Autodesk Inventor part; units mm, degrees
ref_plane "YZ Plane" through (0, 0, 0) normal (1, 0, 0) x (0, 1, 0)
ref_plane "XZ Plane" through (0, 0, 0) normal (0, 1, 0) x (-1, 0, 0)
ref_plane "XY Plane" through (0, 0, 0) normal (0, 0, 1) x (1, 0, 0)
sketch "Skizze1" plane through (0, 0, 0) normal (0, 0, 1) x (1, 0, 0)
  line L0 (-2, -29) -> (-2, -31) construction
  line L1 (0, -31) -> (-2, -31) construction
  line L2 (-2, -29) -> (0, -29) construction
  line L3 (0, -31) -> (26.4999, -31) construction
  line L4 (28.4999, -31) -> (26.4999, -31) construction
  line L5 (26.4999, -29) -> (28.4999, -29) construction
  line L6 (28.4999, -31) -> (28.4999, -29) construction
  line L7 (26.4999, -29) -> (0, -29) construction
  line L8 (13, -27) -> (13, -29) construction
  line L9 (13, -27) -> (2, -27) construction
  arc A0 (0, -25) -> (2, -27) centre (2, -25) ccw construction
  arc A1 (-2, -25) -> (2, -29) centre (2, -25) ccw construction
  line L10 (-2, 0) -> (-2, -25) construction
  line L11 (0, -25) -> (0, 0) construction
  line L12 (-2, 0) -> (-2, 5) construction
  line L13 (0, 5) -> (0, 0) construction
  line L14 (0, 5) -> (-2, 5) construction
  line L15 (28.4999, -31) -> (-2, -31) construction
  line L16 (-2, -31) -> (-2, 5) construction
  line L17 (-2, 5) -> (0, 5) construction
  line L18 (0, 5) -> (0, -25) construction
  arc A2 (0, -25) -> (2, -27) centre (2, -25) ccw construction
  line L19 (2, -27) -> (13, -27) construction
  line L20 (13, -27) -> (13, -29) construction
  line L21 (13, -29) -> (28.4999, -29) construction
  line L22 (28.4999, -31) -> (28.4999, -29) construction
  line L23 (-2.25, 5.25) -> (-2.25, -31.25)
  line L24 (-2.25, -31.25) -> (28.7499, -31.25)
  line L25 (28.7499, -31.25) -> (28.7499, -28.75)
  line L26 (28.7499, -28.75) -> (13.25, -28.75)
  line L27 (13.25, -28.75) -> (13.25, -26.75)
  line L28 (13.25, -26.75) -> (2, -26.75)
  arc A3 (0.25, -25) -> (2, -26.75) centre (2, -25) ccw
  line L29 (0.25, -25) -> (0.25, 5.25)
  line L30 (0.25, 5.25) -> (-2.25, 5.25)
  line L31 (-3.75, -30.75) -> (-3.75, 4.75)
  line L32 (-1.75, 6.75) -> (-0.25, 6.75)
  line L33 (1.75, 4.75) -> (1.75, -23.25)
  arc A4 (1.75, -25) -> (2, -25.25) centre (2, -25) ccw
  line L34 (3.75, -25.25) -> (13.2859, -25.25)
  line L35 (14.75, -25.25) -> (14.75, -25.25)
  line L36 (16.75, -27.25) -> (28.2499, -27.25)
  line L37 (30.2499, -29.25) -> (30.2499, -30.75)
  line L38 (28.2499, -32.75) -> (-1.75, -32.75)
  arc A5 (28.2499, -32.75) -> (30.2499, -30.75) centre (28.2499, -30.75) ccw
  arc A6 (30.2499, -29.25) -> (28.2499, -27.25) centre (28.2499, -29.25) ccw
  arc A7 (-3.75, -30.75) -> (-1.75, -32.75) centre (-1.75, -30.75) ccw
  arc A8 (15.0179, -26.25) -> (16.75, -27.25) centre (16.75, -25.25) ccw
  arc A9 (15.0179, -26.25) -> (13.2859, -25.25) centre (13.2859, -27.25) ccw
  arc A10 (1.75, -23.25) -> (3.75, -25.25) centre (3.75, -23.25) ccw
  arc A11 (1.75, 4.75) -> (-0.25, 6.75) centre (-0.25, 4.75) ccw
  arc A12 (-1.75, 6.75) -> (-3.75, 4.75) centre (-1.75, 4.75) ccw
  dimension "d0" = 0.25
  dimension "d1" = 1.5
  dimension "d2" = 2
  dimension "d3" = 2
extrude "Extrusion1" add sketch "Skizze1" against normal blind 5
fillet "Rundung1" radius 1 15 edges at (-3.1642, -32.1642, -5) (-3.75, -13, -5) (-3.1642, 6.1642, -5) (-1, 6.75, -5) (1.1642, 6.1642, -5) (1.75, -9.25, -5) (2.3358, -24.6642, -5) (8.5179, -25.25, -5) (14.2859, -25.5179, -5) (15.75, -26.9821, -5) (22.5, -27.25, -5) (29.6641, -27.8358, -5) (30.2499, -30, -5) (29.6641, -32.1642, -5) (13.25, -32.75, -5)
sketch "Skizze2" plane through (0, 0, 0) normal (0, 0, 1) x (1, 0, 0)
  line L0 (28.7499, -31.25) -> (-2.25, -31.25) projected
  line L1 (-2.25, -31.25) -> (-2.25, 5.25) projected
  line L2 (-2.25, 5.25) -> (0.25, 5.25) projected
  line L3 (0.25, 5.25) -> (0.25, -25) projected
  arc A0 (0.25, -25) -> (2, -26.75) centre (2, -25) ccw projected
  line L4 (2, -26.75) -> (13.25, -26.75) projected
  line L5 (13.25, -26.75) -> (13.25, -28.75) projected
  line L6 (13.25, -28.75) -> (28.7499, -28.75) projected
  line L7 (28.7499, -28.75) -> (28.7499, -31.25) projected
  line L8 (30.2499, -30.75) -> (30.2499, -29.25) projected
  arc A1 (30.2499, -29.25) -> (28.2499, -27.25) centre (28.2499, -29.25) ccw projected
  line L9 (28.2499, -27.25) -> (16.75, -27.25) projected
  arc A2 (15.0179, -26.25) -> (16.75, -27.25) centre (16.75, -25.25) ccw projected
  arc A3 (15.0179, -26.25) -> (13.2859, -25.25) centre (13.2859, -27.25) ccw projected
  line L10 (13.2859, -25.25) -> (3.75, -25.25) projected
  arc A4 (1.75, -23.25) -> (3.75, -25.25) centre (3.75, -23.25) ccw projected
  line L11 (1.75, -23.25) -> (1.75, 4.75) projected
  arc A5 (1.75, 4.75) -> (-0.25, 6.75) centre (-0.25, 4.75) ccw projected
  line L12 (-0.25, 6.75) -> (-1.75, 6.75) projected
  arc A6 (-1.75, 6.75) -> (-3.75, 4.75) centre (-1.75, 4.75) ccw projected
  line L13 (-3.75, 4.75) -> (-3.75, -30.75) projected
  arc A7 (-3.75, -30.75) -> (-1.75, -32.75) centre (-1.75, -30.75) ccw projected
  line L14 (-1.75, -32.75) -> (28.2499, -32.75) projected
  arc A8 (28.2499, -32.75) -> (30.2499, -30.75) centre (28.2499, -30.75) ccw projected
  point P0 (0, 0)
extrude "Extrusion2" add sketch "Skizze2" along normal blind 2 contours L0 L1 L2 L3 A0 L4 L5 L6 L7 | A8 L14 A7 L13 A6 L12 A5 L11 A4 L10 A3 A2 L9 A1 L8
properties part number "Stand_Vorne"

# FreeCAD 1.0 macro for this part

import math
import FreeCAD as App
import Part
import Sketcher

V = App.Vector


def edges_at(feature, points):
    """Names of the edges that pass closest to the given points."""
    edges = feature.Shape.Edges
    near = lambda p: min(range(len(edges)), key=lambda i: edges[i].distToShape(Part.Vertex(*p))[0])
    return sorted({f"Edge{near(p) + 1}" for p in points})

doc = App.newDocument("Part")
params = doc.addObject("Spreadsheet::Sheet", "Params")
for row, (alias, value) in enumerate([
    ("sketch1_radius", "2 mm"),
    ("sketch1_height", "2 mm"),
    ("sketch1_width", "1.5 mm"),
    ("sketch1_width2", "30 mm"),
    ("sketch1_height2", "28 mm"),
    ("pad1_length", "5 mm"),
    ("fillet_radius", "1 mm"),
    ("sketch2_radius", "2 mm"),
    ("sketch2_width", "30 mm"),
    ("sketch2_height", "28 mm"),
    ("sketch2_width2", "11.5 mm"),
    ("sketch2_width3", "1.5 mm"),
    ("pad2_length", "2 mm"),
], start=1):
    params.set(f"A{row}", alias)
    params.set(f"B{row}", "=" + value)
    params.setAlias(f"B{row}", alias)

body = doc.addObject("PartDesign::Body", "Body")

# Sketch on XY plane
sketch1 = body.newObject("Sketcher::SketchObject", "Sketch")
sketch1.AttachmentSupport = (doc.getObject("XY_Plane"), [""])
sketch1.MapMode = "FlatFace"
sketch1.addGeometry(Part.LineSegment(V(-3.75, 4.75, 0), V(-3.75, -30.75, 0)), False)
sketch1.addGeometry(Part.ArcOfCircle(Part.Circle(V(-1.75, -30.75, 0), V(0, 0, 1), 2), math.radians(180), math.radians(270)), False)
sketch1.addGeometry(Part.LineSegment(V(-1.75, -32.75, 0), V(28.2499, -32.75, 0)), False)
sketch1.addGeometry(Part.ArcOfCircle(Part.Circle(V(28.2499, -30.75, 0), V(0, 0, 1), 2), math.radians(-90), math.radians(0)), False)
sketch1.addGeometry(Part.LineSegment(V(30.2499, -30.75, 0), V(30.2499, -29.25, 0)), False)
sketch1.addGeometry(Part.ArcOfCircle(Part.Circle(V(28.2499, -29.25, 0), V(0, 0, 1), 2), math.radians(0), math.radians(90)), False)
sketch1.addGeometry(Part.LineSegment(V(28.2499, -27.25, 0), V(16.75, -27.25, 0)), False)
sketch1.addGeometry(Part.ArcOfCircle(Part.Circle(V(16.75, -25.25, 0), V(0, 0, 1), 2.000043), math.radians(-150.000705), math.radians(-90)), False)
sketch1.addGeometry(Part.ArcOfCircle(Part.Circle(V(13.2859, -27.25, 0), V(0, 0, 1), 1.999956), math.radians(30.000728), math.radians(90)), False)
sketch1.addGeometry(Part.LineSegment(V(13.2859, -25.25, 0), V(3.75, -25.25, 0)), False)
sketch1.addGeometry(Part.ArcOfCircle(Part.Circle(V(3.75, -23.25, 0), V(0, 0, 1), 2), math.radians(180), math.radians(270)), False)
sketch1.addGeometry(Part.LineSegment(V(1.75, -23.25, 0), V(1.75, 4.75, 0)), False)
sketch1.addGeometry(Part.ArcOfCircle(Part.Circle(V(-0.25, 4.75, 0), V(0, 0, 1), 2), math.radians(0), math.radians(90)), False)
sketch1.addGeometry(Part.LineSegment(V(-0.25, 6.75, 0), V(-1.75, 6.75, 0)), False)
sketch1.addGeometry(Part.ArcOfCircle(Part.Circle(V(-1.75, 4.75, 0), V(0, 0, 1), 2), math.radians(90), math.radians(180)), False)
sketch1.addGeometry(Part.LineSegment(V(-2.25, -31.25, 0), V(-2.25, 5.25, 0)), False)
sketch1.addGeometry(Part.LineSegment(V(-2.25, 5.25, 0), V(0.25, 5.25, 0)), False)
sketch1.addGeometry(Part.LineSegment(V(0.25, 5.25, 0), V(0.25, -25, 0)), False)
sketch1.addGeometry(Part.ArcOfCircle(Part.Circle(V(2, -25, 0), V(0, 0, 1), 1.75), math.radians(180), math.radians(270)), False)
sketch1.addGeometry(Part.LineSegment(V(2, -26.75, 0), V(13.25, -26.75, 0)), False)
sketch1.addGeometry(Part.LineSegment(V(13.25, -26.75, 0), V(13.25, -28.75, 0)), False)
sketch1.addGeometry(Part.LineSegment(V(13.25, -28.75, 0), V(28.7499, -28.75, 0)), False)
sketch1.addGeometry(Part.LineSegment(V(28.7499, -28.75, 0), V(28.7499, -31.25, 0)), False)
sketch1.addGeometry(Part.LineSegment(V(28.7499, -31.25, 0), V(-2.25, -31.25, 0)), False)
sketch1.addConstraint(Sketcher.Constraint("Tangent", 0, 2, 1, 1))
sketch1.addConstraint(Sketcher.Constraint("Tangent", 1, 2, 2, 1))
sketch1.addConstraint(Sketcher.Constraint("Tangent", 2, 2, 3, 1))
sketch1.addConstraint(Sketcher.Constraint("Tangent", 3, 2, 4, 1))
sketch1.addConstraint(Sketcher.Constraint("Tangent", 4, 2, 5, 1))
sketch1.addConstraint(Sketcher.Constraint("Tangent", 5, 2, 6, 1))
sketch1.addConstraint(Sketcher.Constraint("Tangent", 6, 2, 7, 2))
sketch1.addConstraint(Sketcher.Constraint("Tangent", 7, 1, 8, 1))
sketch1.addConstraint(Sketcher.Constraint("Tangent", 8, 2, 9, 1))
sketch1.addConstraint(Sketcher.Constraint("Tangent", 9, 2, 10, 2))
sketch1.addConstraint(Sketcher.Constraint("Tangent", 10, 1, 11, 1))
sketch1.addConstraint(Sketcher.Constraint("Tangent", 11, 2, 12, 1))
sketch1.addConstraint(Sketcher.Constraint("Tangent", 12, 2, 13, 1))
sketch1.addConstraint(Sketcher.Constraint("Tangent", 13, 2, 14, 1))
sketch1.addConstraint(Sketcher.Constraint("Tangent", 14, 2, 0, 1))
sketch1.addConstraint(Sketcher.Constraint("Coincident", 15, 2, 16, 1))
sketch1.addConstraint(Sketcher.Constraint("Coincident", 16, 2, 17, 1))
sketch1.addConstraint(Sketcher.Constraint("Tangent", 17, 2, 18, 1))
sketch1.addConstraint(Sketcher.Constraint("Tangent", 18, 2, 19, 1))
sketch1.addConstraint(Sketcher.Constraint("Coincident", 19, 2, 20, 1))
sketch1.addConstraint(Sketcher.Constraint("Coincident", 20, 2, 21, 1))
sketch1.addConstraint(Sketcher.Constraint("Coincident", 21, 2, 22, 1))
sketch1.addConstraint(Sketcher.Constraint("Coincident", 22, 2, 23, 1))
sketch1.addConstraint(Sketcher.Constraint("Coincident", 23, 2, 15, 1))
sketch1.addConstraint(Sketcher.Constraint("Vertical", 0))
sketch1.addConstraint(Sketcher.Constraint("Horizontal", 2))
sketch1.addConstraint(Sketcher.Constraint("Vertical", 4))
sketch1.addConstraint(Sketcher.Constraint("Horizontal", 6))
sketch1.addConstraint(Sketcher.Constraint("Horizontal", 9))
sketch1.addConstraint(Sketcher.Constraint("Vertical", 11))
sketch1.addConstraint(Sketcher.Constraint("Horizontal", 13))
sketch1.addConstraint(Sketcher.Constraint("Vertical", 15))
sketch1.addConstraint(Sketcher.Constraint("Horizontal", 16))
sketch1.addConstraint(Sketcher.Constraint("Vertical", 17))
sketch1.addConstraint(Sketcher.Constraint("Horizontal", 19))
sketch1.addConstraint(Sketcher.Constraint("Vertical", 20))
sketch1.addConstraint(Sketcher.Constraint("Horizontal", 21))
sketch1.addConstraint(Sketcher.Constraint("Vertical", 22))
sketch1.addConstraint(Sketcher.Constraint("Horizontal", 23))
sketch1.addConstraint(Sketcher.Constraint("Equal", 1, 3))
sketch1.addConstraint(Sketcher.Constraint("Equal", 3, 5))
sketch1.addConstraint(Sketcher.Constraint("Equal", 5, 7))
sketch1.addConstraint(Sketcher.Constraint("Equal", 7, 8))
sketch1.addConstraint(Sketcher.Constraint("Equal", 8, 10))
sketch1.addConstraint(Sketcher.Constraint("Equal", 10, 12))
sketch1.addConstraint(Sketcher.Constraint("Equal", 12, 14))
sketch1.addConstraint(Sketcher.Constraint("Horizontal", 8, 3, 5, 2))
sketch1.addConstraint(Sketcher.Constraint("Equal", 13, 4))
sketch1.addConstraint(Sketcher.Constraint("Equal", 16, 22))
sketch1.addConstraint(Sketcher.Constraint("Radius", 1, 2.0))
sketch1.addConstraint(Sketcher.Constraint("DistanceY", 20, 2, 20, 1, 2.0))
sketch1.addConstraint(Sketcher.Constraint("DistanceX", 13, 2, 13, 1, 1.5))
sketch1.addConstraint(Sketcher.Constraint("DistanceX", -1, 1, 18, 3, 2.0))
sketch1.addConstraint(Sketcher.Constraint("DistanceX", 15, 2, 12, 3, 2.0))
sketch1.addConstraint(Sketcher.Constraint("DistanceX", 14, 3, 16, 2, 2.0))
sketch1.addConstraint(Sketcher.Constraint("DistanceY", 3, 3, 21, 2, 2.0))
sketch1.addConstraint(Sketcher.Constraint("DistanceY", 15, 2, 13, 2, 1.5))
sketch1.addConstraint(Sketcher.Constraint("DistanceX", 21, 2, 4, 2, 1.5))
sketch1.addConstraint(Sketcher.Constraint("DistanceX", 2, 1, 2, 2, 30.0))
sketch1.addConstraint(Sketcher.Constraint("DistanceY", 11, 1, 11, 2, 28.0))
sketch1.addConstraint(Sketcher.Constraint("DistanceX", 12, 3, -1, 1, 0.25))
sketch1.addConstraint(Sketcher.Constraint("DistanceX", 6, 2, 6, 1, 11.5))
sketch1.addConstraint(Sketcher.Constraint("DistanceX", 21, 1, 21, 2, 15.5))
sketch1.addConstraint(Sketcher.Constraint("DistanceY", 18, 3, -1, 1, 25.0))
sketch1.setExpression("Constraints[49]", "Params.sketch1_radius")
sketch1.setExpression("Constraints[50]", "Params.sketch1_height")
sketch1.setExpression("Constraints[51]", "Params.sketch1_width")
sketch1.setExpression("Constraints[58]", "Params.sketch1_width2")
sketch1.setExpression("Constraints[59]", "Params.sketch1_height2")
pad1 = body.newObject("PartDesign::Pad", "Pad")
pad1.Profile = sketch1
pad1.setExpression("Length", "Params.pad1_length")
pad1.Reversed = True
doc.recompute()

fillet = body.newObject("PartDesign::Fillet", "Fillet")
fillet.Base = (pad1, edges_at(pad1, [
    (-3.164, -32.164, -5),
    (-3.75, -13, -5),
    (-3.164, 6.164, -5),
    (-1, 6.75, -5),
    (1.164, 6.164, -5),
    (1.75, -9.25, -5),
    (2.336, -24.664, -5),
    (8.518, -25.25, -5),
    (14.286, -25.518, -5),
    (15.75, -26.982, -5),
    (22.5, -27.25, -5),
    (29.664, -27.836, -5),
    (30.25, -30, -5),
    (29.664, -32.164, -5),
    (13.25, -32.75, -5),
]))
fillet.setExpression("Radius", "Params.fillet_radius")

# Sketch on XY plane
sketch2 = body.newObject("Sketcher::SketchObject", "Sketch001")
sketch2.AttachmentSupport = (doc.getObject("XY_Plane"), [""])
sketch2.MapMode = "FlatFace"
sketch2.addGeometry(Part.ArcOfCircle(Part.Circle(V(28.2499, -30.75, 0), V(0, 0, 1), 2), math.radians(-90), math.radians(0)), False)
sketch2.addGeometry(Part.LineSegment(V(30.2499, -30.75, 0), V(30.2499, -29.25, 0)), False)
sketch2.addGeometry(Part.ArcOfCircle(Part.Circle(V(28.2499, -29.25, 0), V(0, 0, 1), 2), math.radians(0), math.radians(90)), False)
sketch2.addGeometry(Part.LineSegment(V(28.2499, -27.25, 0), V(16.75, -27.25, 0)), False)
sketch2.addGeometry(Part.ArcOfCircle(Part.Circle(V(16.75, -25.25, 0), V(0, 0, 1), 2.000043), math.radians(-150.000705), math.radians(-90)), False)
sketch2.addGeometry(Part.ArcOfCircle(Part.Circle(V(13.2859, -27.25, 0), V(0, 0, 1), 1.999956), math.radians(30.000728), math.radians(90)), False)
sketch2.addGeometry(Part.LineSegment(V(13.2859, -25.25, 0), V(3.75, -25.25, 0)), False)
sketch2.addGeometry(Part.ArcOfCircle(Part.Circle(V(3.75, -23.25, 0), V(0, 0, 1), 2), math.radians(180), math.radians(270)), False)
sketch2.addGeometry(Part.LineSegment(V(1.75, -23.25, 0), V(1.75, 4.75, 0)), False)
sketch2.addGeometry(Part.ArcOfCircle(Part.Circle(V(-0.25, 4.75, 0), V(0, 0, 1), 2), math.radians(0), math.radians(90)), False)
sketch2.addGeometry(Part.LineSegment(V(-0.25, 6.75, 0), V(-1.75, 6.75, 0)), False)
sketch2.addGeometry(Part.ArcOfCircle(Part.Circle(V(-1.75, 4.75, 0), V(0, 0, 1), 2), math.radians(90), math.radians(180)), False)
sketch2.addGeometry(Part.LineSegment(V(-3.75, 4.75, 0), V(-3.75, -30.75, 0)), False)
sketch2.addGeometry(Part.ArcOfCircle(Part.Circle(V(-1.75, -30.75, 0), V(0, 0, 1), 2), math.radians(180), math.radians(270)), False)
sketch2.addGeometry(Part.LineSegment(V(-1.75, -32.75, 0), V(28.2499, -32.75, 0)), False)
sketch2.addConstraint(Sketcher.Constraint("Tangent", 0, 2, 1, 1))
sketch2.addConstraint(Sketcher.Constraint("Tangent", 1, 2, 2, 1))
sketch2.addConstraint(Sketcher.Constraint("Tangent", 2, 2, 3, 1))
sketch2.addConstraint(Sketcher.Constraint("Tangent", 3, 2, 4, 2))
sketch2.addConstraint(Sketcher.Constraint("Tangent", 4, 1, 5, 1))
sketch2.addConstraint(Sketcher.Constraint("Tangent", 5, 2, 6, 1))
sketch2.addConstraint(Sketcher.Constraint("Tangent", 6, 2, 7, 2))
sketch2.addConstraint(Sketcher.Constraint("Tangent", 7, 1, 8, 1))
sketch2.addConstraint(Sketcher.Constraint("Tangent", 8, 2, 9, 1))
sketch2.addConstraint(Sketcher.Constraint("Tangent", 9, 2, 10, 1))
sketch2.addConstraint(Sketcher.Constraint("Tangent", 10, 2, 11, 1))
sketch2.addConstraint(Sketcher.Constraint("Tangent", 11, 2, 12, 1))
sketch2.addConstraint(Sketcher.Constraint("Tangent", 12, 2, 13, 1))
sketch2.addConstraint(Sketcher.Constraint("Tangent", 13, 2, 14, 1))
sketch2.addConstraint(Sketcher.Constraint("Tangent", 14, 2, 0, 1))
sketch2.addConstraint(Sketcher.Constraint("Vertical", 1))
sketch2.addConstraint(Sketcher.Constraint("Horizontal", 3))
sketch2.addConstraint(Sketcher.Constraint("Horizontal", 6))
sketch2.addConstraint(Sketcher.Constraint("Vertical", 8))
sketch2.addConstraint(Sketcher.Constraint("Horizontal", 10))
sketch2.addConstraint(Sketcher.Constraint("Vertical", 12))
sketch2.addConstraint(Sketcher.Constraint("Horizontal", 14))
sketch2.addConstraint(Sketcher.Constraint("Equal", 0, 2))
sketch2.addConstraint(Sketcher.Constraint("Equal", 2, 4))
sketch2.addConstraint(Sketcher.Constraint("Equal", 4, 5))
sketch2.addConstraint(Sketcher.Constraint("Equal", 5, 7))
sketch2.addConstraint(Sketcher.Constraint("Equal", 7, 9))
sketch2.addConstraint(Sketcher.Constraint("Equal", 9, 11))
sketch2.addConstraint(Sketcher.Constraint("Equal", 11, 13))
sketch2.addConstraint(Sketcher.Constraint("Horizontal", 5, 3, 2, 2))
sketch2.addConstraint(Sketcher.Constraint("Equal", 10, 1))
sketch2.addConstraint(Sketcher.Constraint("Radius", 0, 2.0))
sketch2.addConstraint(Sketcher.Constraint("DistanceX", 14, 1, 14, 2, 30.0))
sketch2.addConstraint(Sketcher.Constraint("DistanceY", 8, 1, 8, 2, 28.0))
sketch2.addConstraint(Sketcher.Constraint("DistanceX", 3, 2, 3, 1, 11.5))
sketch2.addConstraint(Sketcher.Constraint("DistanceX", 10, 2, 10, 1, 1.5))
sketch2.addConstraint(Sketcher.Constraint("DistanceX", -1, 1, 0, 3, 28.25))
sketch2.addConstraint(Sketcher.Constraint("DistanceY", 0, 3, -1, 1, 30.75))
sketch2.setExpression("Constraints[31]", "Params.sketch2_radius")
sketch2.setExpression("Constraints[32]", "Params.sketch2_width")
sketch2.setExpression("Constraints[33]", "Params.sketch2_height")
sketch2.setExpression("Constraints[34]", "Params.sketch2_width2")
sketch2.setExpression("Constraints[35]", "Params.sketch2_width3")
pad2 = body.newObject("PartDesign::Pad", "Pad001")
pad2.Profile = sketch2
pad2.setExpression("Length", "Params.pad2_length")

doc.recompute()
